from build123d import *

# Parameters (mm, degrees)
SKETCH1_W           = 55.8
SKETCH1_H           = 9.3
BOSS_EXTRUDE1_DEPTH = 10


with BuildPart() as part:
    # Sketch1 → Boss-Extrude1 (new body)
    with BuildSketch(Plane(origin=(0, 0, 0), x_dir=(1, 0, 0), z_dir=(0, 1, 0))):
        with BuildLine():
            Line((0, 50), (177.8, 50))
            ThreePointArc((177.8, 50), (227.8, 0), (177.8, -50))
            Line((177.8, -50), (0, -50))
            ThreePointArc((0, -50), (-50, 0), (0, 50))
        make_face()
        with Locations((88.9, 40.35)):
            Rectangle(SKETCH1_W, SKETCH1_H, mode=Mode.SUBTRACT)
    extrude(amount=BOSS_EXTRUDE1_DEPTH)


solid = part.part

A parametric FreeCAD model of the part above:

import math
import FreeCAD as App
import Part
import Sketcher
Q = App.Units.Quantity

doc = App.newDocument("Part")
body = doc.addObject("PartDesign::Body", "Body")

sketch1 = body.newObject("Sketcher::SketchObject", "Sketch")
sketch1.AttachmentSupport = (doc.getObject("XZ_Plane"), [""])
sketch1.MapMode = "FlatFace"
sketch1.addGeometry(Part.LineSegment(App.Vector(178, -50, 0), App.Vector(0, -50, 0)), False)
sketch1.addGeometry(Part.ArcOfCircle(Part.Circle(App.Vector(0, 0, 0), App.Vector(0, 0, 1), 50), math.radians(90), math.radians(270)), False)
sketch1.addGeometry(Part.LineSegment(App.Vector(0, 50, 0), App.Vector(178, 50, 0)), False)
sketch1.addGeometry(Part.ArcOfCircle(Part.Circle(App.Vector(178, 0, 0), App.Vector(0, 0, 1), 50), math.radians(-90), math.radians(90)), False)
sketch1.addGeometry(Part.LineSegment(App.Vector(61, -36, 0), App.Vector(61, -45, 0)), False)
sketch1.addGeometry(Part.LineSegment(App.Vector(61, -45, 0), App.Vector(117, -45, 0)), False)
sketch1.addGeometry(Part.LineSegment(App.Vector(117, -45, 0), App.Vector(117, -36, 0)), False)
sketch1.addGeometry(Part.LineSegment(App.Vector(117, -36, 0), App.Vector(61, -36, 0)), False)
sketch1.addConstraint(Sketcher.Constraint("Tangent", 0, 2, 1, 2))
sketch1.addConstraint(Sketcher.Constraint("Tangent", 1, 1, 2, 1))
sketch1.addConstraint(Sketcher.Constraint("Tangent", 2, 2, 3, 2))
sketch1.addConstraint(Sketcher.Constraint("Tangent", 3, 1, 0, 1))
sketch1.addConstraint(Sketcher.Constraint("Coincident", 4, 2, 5, 1))
sketch1.addConstraint(Sketcher.Constraint("Coincident", 5, 2, 6, 1))
sketch1.addConstraint(Sketcher.Constraint("Coincident", 6, 2, 7, 1))
sketch1.addConstraint(Sketcher.Constraint("Coincident", 7, 2, 4, 1))
sketch1.addConstraint(Sketcher.Constraint("Horizontal", 0))
sketch1.addConstraint(Sketcher.Constraint("Horizontal", 2))
sketch1.addConstraint(Sketcher.Constraint("Vertical", 4))
sketch1.addConstraint(Sketcher.Constraint("Horizontal", 5))
sketch1.addConstraint(Sketcher.Constraint("Vertical", 6))
sketch1.addConstraint(Sketcher.Constraint("Horizontal", 7))
sketch1.addConstraint(Sketcher.Constraint("Coincident", 1, 3, -1, 1))
sketch1.addConstraint(Sketcher.Constraint("Radius", 1, Q("50 mm")))
sketch1.addConstraint(Sketcher.Constraint("DistanceX", 0, 2, 0, 1, Q("177.8 mm")))
sketch1.addConstraint(Sketcher.Constraint("DistanceX", 5, 1, 5, 2, Q("55.8 mm")))
sketch1.addConstraint(Sketcher.Constraint("DistanceY", 4, 2, 4, 1, Q("9.3 mm")))
sketch1.addConstraint(Sketcher.Constraint("DistanceX", -1, 1, 4, 2, Q("61 mm")))
sketch1.addConstraint(Sketcher.Constraint("DistanceY", 4, 2, -1, 1, Q("45 mm")))
pad1 = body.newObject("PartDesign::Pad", "Pad")
pad1.Profile = sketch1
pad1.Length = 10
pad1.Reversed = True

doc.recompute()
